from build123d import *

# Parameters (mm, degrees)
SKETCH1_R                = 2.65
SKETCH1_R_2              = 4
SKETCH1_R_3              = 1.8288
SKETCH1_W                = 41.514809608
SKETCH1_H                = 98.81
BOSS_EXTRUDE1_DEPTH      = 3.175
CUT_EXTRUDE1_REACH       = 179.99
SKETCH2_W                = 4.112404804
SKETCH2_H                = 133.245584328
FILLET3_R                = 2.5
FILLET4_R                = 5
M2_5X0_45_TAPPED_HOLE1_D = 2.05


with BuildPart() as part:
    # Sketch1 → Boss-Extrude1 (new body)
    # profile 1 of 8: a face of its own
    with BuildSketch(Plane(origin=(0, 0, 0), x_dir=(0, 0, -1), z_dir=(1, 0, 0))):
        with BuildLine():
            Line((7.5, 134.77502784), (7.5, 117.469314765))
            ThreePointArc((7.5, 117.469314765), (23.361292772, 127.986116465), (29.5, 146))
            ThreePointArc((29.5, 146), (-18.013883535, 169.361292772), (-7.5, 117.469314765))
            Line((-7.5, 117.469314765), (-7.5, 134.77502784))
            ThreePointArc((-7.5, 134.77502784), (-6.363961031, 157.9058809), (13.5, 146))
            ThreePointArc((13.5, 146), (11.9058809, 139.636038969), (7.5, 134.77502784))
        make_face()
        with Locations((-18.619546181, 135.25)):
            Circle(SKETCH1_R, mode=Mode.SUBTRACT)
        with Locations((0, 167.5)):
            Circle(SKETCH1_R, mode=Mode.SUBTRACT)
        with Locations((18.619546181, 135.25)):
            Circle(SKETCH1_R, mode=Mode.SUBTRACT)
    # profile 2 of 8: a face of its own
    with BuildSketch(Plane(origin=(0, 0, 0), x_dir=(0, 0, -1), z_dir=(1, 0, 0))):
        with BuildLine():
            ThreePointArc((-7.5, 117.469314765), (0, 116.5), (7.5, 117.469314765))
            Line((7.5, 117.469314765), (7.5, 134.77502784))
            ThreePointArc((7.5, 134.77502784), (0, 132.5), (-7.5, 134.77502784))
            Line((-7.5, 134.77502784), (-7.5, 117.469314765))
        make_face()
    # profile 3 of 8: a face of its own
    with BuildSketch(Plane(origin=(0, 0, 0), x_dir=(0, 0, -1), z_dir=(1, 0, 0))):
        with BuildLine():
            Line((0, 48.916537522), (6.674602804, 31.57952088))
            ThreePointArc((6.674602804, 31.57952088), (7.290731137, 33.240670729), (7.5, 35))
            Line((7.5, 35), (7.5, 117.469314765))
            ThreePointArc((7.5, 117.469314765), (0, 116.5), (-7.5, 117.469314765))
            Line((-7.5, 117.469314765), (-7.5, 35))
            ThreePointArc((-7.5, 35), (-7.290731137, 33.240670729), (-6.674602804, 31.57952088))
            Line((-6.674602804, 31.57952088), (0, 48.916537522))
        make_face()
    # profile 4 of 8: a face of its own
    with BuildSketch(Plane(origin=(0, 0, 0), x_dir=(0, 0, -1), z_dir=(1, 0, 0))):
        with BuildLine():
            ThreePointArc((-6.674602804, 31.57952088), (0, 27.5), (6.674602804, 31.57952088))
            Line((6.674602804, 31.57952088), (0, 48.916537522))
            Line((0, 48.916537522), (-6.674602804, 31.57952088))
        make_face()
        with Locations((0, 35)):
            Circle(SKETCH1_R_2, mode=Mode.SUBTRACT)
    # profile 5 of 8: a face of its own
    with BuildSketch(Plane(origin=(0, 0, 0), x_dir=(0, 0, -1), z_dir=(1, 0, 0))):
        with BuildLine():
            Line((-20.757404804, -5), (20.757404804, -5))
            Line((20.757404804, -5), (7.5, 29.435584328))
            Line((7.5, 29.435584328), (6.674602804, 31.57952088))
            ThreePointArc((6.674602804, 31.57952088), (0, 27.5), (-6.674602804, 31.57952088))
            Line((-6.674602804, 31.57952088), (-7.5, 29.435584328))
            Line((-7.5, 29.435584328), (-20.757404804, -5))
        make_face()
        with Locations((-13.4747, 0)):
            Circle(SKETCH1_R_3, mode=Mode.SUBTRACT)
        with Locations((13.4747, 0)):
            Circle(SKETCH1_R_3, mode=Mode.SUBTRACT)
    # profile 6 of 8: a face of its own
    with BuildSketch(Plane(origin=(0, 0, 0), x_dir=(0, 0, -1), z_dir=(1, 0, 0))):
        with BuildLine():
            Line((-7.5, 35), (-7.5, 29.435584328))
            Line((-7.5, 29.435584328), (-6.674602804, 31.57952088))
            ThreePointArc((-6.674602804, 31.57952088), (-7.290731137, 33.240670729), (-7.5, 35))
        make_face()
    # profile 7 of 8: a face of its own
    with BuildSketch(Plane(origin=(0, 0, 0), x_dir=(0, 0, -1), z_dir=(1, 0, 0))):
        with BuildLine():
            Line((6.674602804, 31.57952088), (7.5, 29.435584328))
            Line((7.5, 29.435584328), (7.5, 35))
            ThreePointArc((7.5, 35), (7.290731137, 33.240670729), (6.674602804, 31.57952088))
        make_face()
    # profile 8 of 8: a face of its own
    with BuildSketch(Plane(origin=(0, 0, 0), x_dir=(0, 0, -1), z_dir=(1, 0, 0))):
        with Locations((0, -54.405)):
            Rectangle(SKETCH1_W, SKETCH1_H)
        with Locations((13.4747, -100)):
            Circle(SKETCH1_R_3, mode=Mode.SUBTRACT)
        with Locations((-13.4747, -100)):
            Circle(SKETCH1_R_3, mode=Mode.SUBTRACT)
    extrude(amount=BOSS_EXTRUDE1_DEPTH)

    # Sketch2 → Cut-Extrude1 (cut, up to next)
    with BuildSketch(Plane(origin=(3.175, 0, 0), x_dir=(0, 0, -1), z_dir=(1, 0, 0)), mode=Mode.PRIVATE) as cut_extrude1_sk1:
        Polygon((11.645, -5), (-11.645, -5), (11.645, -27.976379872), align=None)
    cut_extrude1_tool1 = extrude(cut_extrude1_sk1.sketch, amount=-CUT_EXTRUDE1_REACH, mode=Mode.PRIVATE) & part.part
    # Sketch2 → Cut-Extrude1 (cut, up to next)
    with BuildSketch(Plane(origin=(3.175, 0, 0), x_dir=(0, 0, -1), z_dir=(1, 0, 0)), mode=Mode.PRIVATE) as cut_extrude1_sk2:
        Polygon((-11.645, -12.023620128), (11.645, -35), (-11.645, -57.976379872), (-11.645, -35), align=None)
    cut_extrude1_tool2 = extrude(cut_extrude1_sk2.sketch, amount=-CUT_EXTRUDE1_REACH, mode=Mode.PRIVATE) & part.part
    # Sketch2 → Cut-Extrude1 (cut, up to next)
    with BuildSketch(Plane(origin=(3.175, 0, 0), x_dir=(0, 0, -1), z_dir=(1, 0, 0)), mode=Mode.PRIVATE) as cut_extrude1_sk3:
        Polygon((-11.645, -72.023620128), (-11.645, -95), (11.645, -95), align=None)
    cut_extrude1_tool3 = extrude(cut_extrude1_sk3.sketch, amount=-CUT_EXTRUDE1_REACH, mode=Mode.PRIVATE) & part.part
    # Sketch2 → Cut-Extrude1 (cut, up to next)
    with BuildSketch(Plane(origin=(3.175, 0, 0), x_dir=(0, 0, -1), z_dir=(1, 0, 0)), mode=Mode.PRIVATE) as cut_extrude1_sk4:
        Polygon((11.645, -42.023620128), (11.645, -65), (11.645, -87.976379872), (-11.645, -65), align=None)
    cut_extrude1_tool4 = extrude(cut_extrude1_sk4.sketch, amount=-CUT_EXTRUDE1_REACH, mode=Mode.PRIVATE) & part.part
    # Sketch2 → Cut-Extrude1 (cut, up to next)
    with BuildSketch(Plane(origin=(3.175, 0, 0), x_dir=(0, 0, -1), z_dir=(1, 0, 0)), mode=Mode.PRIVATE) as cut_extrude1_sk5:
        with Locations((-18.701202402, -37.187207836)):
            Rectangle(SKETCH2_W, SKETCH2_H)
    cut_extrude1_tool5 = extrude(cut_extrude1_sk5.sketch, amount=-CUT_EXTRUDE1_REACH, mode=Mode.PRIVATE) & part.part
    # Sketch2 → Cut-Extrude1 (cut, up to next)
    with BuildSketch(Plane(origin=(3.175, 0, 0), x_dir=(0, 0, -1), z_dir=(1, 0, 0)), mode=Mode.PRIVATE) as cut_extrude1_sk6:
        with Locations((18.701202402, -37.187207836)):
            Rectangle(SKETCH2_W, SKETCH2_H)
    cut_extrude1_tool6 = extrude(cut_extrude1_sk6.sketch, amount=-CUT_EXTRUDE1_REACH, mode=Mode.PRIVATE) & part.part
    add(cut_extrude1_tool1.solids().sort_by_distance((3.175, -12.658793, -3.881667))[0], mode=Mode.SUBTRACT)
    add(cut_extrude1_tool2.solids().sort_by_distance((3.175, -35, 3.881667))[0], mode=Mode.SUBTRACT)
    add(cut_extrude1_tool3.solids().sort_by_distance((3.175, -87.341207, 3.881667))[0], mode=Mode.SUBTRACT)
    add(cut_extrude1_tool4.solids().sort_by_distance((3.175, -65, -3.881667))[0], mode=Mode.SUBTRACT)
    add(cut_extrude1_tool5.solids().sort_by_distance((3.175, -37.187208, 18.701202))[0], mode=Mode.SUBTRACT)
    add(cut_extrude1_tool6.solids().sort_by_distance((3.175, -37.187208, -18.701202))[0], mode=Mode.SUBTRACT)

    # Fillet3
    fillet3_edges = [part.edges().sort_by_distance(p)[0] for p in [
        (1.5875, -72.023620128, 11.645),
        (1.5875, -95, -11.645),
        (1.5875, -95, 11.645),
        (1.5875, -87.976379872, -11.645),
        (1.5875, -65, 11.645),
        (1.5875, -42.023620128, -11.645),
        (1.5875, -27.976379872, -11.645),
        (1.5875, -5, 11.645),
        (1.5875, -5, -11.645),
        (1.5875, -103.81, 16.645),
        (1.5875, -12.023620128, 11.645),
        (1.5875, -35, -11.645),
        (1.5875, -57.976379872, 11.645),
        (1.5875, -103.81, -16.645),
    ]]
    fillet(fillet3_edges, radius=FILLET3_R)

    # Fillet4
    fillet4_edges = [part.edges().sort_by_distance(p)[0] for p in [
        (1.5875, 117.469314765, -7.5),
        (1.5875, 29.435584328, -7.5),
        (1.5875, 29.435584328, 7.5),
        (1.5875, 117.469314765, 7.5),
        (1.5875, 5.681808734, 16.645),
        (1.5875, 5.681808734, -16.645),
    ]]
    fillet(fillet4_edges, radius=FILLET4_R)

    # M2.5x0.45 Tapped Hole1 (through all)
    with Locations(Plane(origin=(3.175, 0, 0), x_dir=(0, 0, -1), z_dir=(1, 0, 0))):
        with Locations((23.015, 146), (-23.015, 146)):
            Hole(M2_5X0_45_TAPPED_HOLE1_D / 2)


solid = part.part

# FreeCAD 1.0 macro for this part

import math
import FreeCAD as App
import Part
import Sketcher
from FreeCAD import Vector
Q = App.Units.Quantity


def edges_at(feature, points):
    """Names of the edges that pass closest to the given points."""
    edges = feature.Shape.Edges
    near = lambda p: min(range(len(edges)), key=lambda i: edges[i].distToShape(Part.Vertex(*p))[0])
    return sorted({f"Edge{near(p) + 1}" for p in points})


def add_polygon(sketch, points):
    """Adds a closed chain of lines whose ends are joined by coincident constraints."""
    first, n = sketch.GeometryCount, len(points)
    for a, b in zip(points, points[1:] + points[:1]):
        sketch.addGeometry(Part.LineSegment(App.Vector(*a, 0), App.Vector(*b, 0)), False)
    for i in range(n):
        sketch.addConstraint(Sketcher.Constraint("Coincident", first + i, 2, first + (i + 1) % n, 1))

doc = App.newDocument("Part")
body = doc.addObject("PartDesign::Body", "Body")

sketch1 = body.newObject("Sketcher::SketchObject", "Sketch")
sketch1.AttachmentSupport = (doc.getObject("YZ_Plane"), [""])
sketch1.MapMode = "FlatFace"
sketch1.addGeometry(Part.ArcOfCircle(Part.Circle(Vector(146, 0, 0), Vector(0, 0, 1), 29.5), math.radians(-165), math.radians(-90)), False)
sketch1.addGeometry(Part.ArcOfCircle(Part.Circle(Vector(146, 0, 0), Vector(0, 0, 1), 29.5), math.radians(-90), math.radians(165)), False)
sketch1.addGeometry(Part.LineSegment(Vector(117.5, 7.5, 0), Vector(29.4, 7.5, 0)), False)
sketch1.addGeometry(Part.LineSegment(Vector(29.4, 7.5, 0), Vector(-5, 20.8, 0)), False)
sketch1.addGeometry(Part.LineSegment(Vector(-5, 20.8, 0), Vector(-103.8, 20.8, 0)), False)
sketch1.addGeometry(Part.LineSegment(Vector(-103.8, 20.8, 0), Vector(-103.8, -20.8, 0)), False)
sketch1.addGeometry(Part.LineSegment(Vector(-103.8, -20.8, 0), Vector(-5, -20.8, 0)), False)
sketch1.addGeometry(Part.LineSegment(Vector(-5, -20.8, 0), Vector(29.4, -7.5, 0)), False)
sketch1.addGeometry(Part.LineSegment(Vector(29.4, -7.5, 0), Vector(117.5, -7.5, 0)), False)
sketch1.addGeometry(Part.ArcOfCircle(Part.Circle(Vector(146, 0, 0), Vector(0, 0, 1), 13.5), math.radians(-146), math.radians(-90)), False)
sketch1.addGeometry(Part.ArcOfCircle(Part.Circle(Vector(146, 0, 0), Vector(0, 0, 1), 13.5), math.radians(146), math.radians(214)), False)
sketch1.addGeometry(Part.ArcOfCircle(Part.Circle(Vector(146, 0, 0), Vector(0, 0, 1), 13.5), math.radians(-90), math.radians(146)), False)
sketch1.addGeometry(Part.Circle(Vector(135.2, 18.6, 0), Vector(0, 0, 1), 2.6), False)
sketch1.addGeometry(Part.Circle(Vector(135.2, -18.6, 0), Vector(0, 0, 1), 2.6), False)
sketch1.addGeometry(Part.Circle(Vector(167.5, 0, 0), Vector(0, 0, 1), 2.6), False)
sketch1.addGeometry(Part.Circle(Vector(35, 0, 0), Vector(0, 0, 1), 4), False)
sketch1.addGeometry(Part.Circle(Vector(0, -13.5, 0), Vector(0, 0, 1), 1.8), False)
sketch1.addGeometry(Part.Circle(Vector(0, 13.5, 0), Vector(0, 0, 1), 1.8), False)
sketch1.addGeometry(Part.Circle(Vector(-100, -13.5, 0), Vector(0, 0, 1), 1.8), False)
sketch1.addGeometry(Part.Circle(Vector(-100, 13.5, 0), Vector(0, 0, 1), 1.8), False)
sketch1.addConstraint(Sketcher.Constraint("Tangent", 0, 2, 1, 1))
sketch1.addConstraint(Sketcher.Constraint("Coincident", 1, 2, 2, 1))
sketch1.addConstraint(Sketcher.Constraint("Coincident", 2, 2, 3, 1))
sketch1.addConstraint(Sketcher.Constraint("Coincident", 3, 2, 4, 1))
sketch1.addConstraint(Sketcher.Constraint("Coincident", 4, 2, 5, 1))
sketch1.addConstraint(Sketcher.Constraint("Coincident", 5, 2, 6, 1))
sketch1.addConstraint(Sketcher.Constraint("Coincident", 6, 2, 7, 1))
sketch1.addConstraint(Sketcher.Constraint("Coincident", 7, 2, 8, 1))
sketch1.addConstraint(Sketcher.Constraint("Coincident", 8, 2, 0, 1))
sketch1.addConstraint(Sketcher.Constraint("Tangent", 9, 1, 10, 2))
sketch1.addConstraint(Sketcher.Constraint("Tangent", 10, 1, 11, 2))
sketch1.addConstraint(Sketcher.Constraint("Tangent", 11, 1, 9, 2))
sketch1.addConstraint(Sketcher.Constraint("Horizontal", 2))
sketch1.addConstraint(Sketcher.Constraint("Horizontal", 4))
sketch1.addConstraint(Sketcher.Constraint("Vertical", 5))
sketch1.addConstraint(Sketcher.Constraint("Horizontal", 6))
sketch1.addConstraint(Sketcher.Constraint("Horizontal", 8))
sketch1.addConstraint(Sketcher.Constraint("Coincident", 9, 3, 0, 3))
sketch1.addConstraint(Sketcher.Constraint("Equal", 0, 1))
sketch1.addConstraint(Sketcher.Constraint("Equal", 12, 13))
sketch1.addConstraint(Sketcher.Constraint("Equal", 13, 14))
sketch1.addConstraint(Sketcher.Constraint("Equal", 16, 17))
sketch1.addConstraint(Sketcher.Constraint("Equal", 17, 18))
sketch1.addConstraint(Sketcher.Constraint("Equal", 18, 19))
sketch1.addConstraint(Sketcher.Constraint("Symmetric", 16, 3, 17, 3, -1, 1))
sketch1.addConstraint(Sketcher.Constraint("Symmetric", 12, 3, 13, 3, -1))
sketch1.addConstraint(Sketcher.Constraint("Symmetric", 18, 3, 19, 3, -1))
sketch1.addConstraint(Sketcher.Constraint("Symmetric", 3, 2, 6, 2, -1))
sketch1.addConstraint(Sketcher.Constraint("Symmetric", 2, 2, 7, 2, -1))
sketch1.addConstraint(Sketcher.Constraint("Symmetric", 9, 1, 10, 1, -1))
sketch1.addConstraint(Sketcher.Constraint("PointOnObject", 14, 3, -1))
sketch1.addConstraint(Sketcher.Constraint("PointOnObject", 15, 3, -1))
sketch1.addConstraint(Sketcher.Constraint("PointOnObject", 16, 3, -2))
sketch1.addConstraint(Sketcher.Constraint("Horizontal", 16, 3, 18, 3))
sketch1.addConstraint(Sketcher.Constraint("Horizontal", 8, 2, 9, 1))
sketch1.addConstraint(Sketcher.Constraint("Vertical", 11, 3, 0, 2))
sketch1.addConstraint(Sketcher.Constraint("Vertical", 0, 2, 11, 1))
sketch1.addConstraint(Sketcher.Constraint("Diameter", 15, Q("8 mm")))
sketch1.addConstraint(Sketcher.Constraint("Diameter", 12, Q("5.3 mm")))
sketch1.addConstraint(Sketcher.Constraint("Radius", 0, Q("29.5 mm")))
sketch1.addConstraint(Sketcher.Constraint("Radius", 9, Q("13.5 mm")))
sketch1.addConstraint(Sketcher.Constraint("DistanceX", -1, 1, 0, 3, Q("146 mm")))
sketch1.addConstraint(Sketcher.Constraint("DistanceX", -1, 1, 15, 3, Q("35 mm")))
sketch1.addConstraint(Sketcher.Constraint("DistanceX", 18, 3, -1, 1, Q("100 mm")))
sketch1.addConstraint(Sketcher.Constraint("DistanceX", 3, 2, -1, 1, Q("5 mm")))
sketch1.addConstraint(Sketcher.Constraint("DistanceY", 7, 2, 2, 2, Q("15 mm")))
sketch1.addConstraint(Sketcher.Constraint("Diameter", 16, Q("3.6576 mm")))
sketch1.addConstraint(Sketcher.Constraint("DistanceX", 4, 2, 4, 1, Q("98.81 mm")))
sketch1.addConstraint(Sketcher.Constraint("DistanceX", -1, 1, 14, 3, Q("167.5 mm")))
sketch1.addConstraint(Sketcher.Constraint("DistanceX", -1, 1, 12, 3, Q("135.25 mm")))
sketch1.addConstraint(Sketcher.Constraint("DistanceX", 2, 2, 2, 1, Q("88.03373 mm")))
sketch1.addConstraint(Sketcher.Constraint("DistanceY", 5, 2, 5, 1, Q("41.51481 mm")))
sketch1.addConstraint(Sketcher.Constraint("DistanceY", 16, 3, -1, 1, Q("13.4747 mm")))
sketch1.addConstraint(Sketcher.Constraint("DistanceY", -1, 1, 12, 3, Q("18.619546 mm")))
pad1 = body.newObject("PartDesign::Pad", "Pad")
pad1.Profile = sketch1
pad1.Length = 3.175

sketch2 = body.newObject("Sketcher::SketchObject", "Sketch001")
sketch2.AttachmentSupport = (doc.getObject("YZ_Plane"), [""])
sketch2.MapMode = "FlatFace"
sketch2.AttachmentOffset = App.Placement(Vector(0, 0, 3.175), App.Rotation())
add_polygon(sketch2, [(-5, -12), (-5, 12), (-28, -12)])
sketch2.addConstraint(Sketcher.Constraint("Vertical", 0))
sketch2.addConstraint(Sketcher.Constraint("Horizontal", 2))
sketch2.addConstraint(Sketcher.Constraint("DistanceX", 0, 2, -1, 1, Q("5 mm")))
sketch2.addConstraint(Sketcher.Constraint("DistanceY", 0, 1, 0, 2, Q("23.29 mm")))
sketch2.addConstraint(Sketcher.Constraint("DistanceY", -1, 1, 0, 2, Q("11.645 mm")))
sketch2.addConstraint(Sketcher.Constraint("DistanceX", 2, 1, 2, 2, Q("22.97638 mm")))
pocket1 = body.newObject("PartDesign::Pocket", "Pocket")
pocket1.Profile = sketch2
pocket1.Type = "UpToFirst"

sketch3 = body.newObject("Sketcher::SketchObject", "Sketch002")
sketch3.AttachmentSupport = (doc.getObject("YZ_Plane"), [""])
sketch3.MapMode = "FlatFace"
sketch3.AttachmentOffset = App.Placement(Vector(0, 0, 3.175), App.Rotation())
add_polygon(sketch3, [(-35, -12), (-12, 12), (-58, 12)])
sketch3.addConstraint(Sketcher.Constraint("Horizontal", 1))
sketch3.addConstraint(Sketcher.Constraint("Equal", 0, 2))
sketch3.addConstraint(Sketcher.Constraint("DistanceX", 2, 2, -1, 1, Q("35 mm")))
sketch3.addConstraint(Sketcher.Constraint("DistanceY", 2, 2, 0, 2, Q("23.29 mm")))
sketch3.addConstraint(Sketcher.Constraint("DistanceY", -1, 1, 0, 2, Q("11.645 mm")))
sketch3.addConstraint(Sketcher.Constraint("DistanceX", 1, 2, 1, 1, Q("45.95276 mm")))
pocket2 = body.newObject("PartDesign::Pocket", "Pocket001")
pocket2.Profile = sketch3
pocket2.Type = "UpToFirst"

sketch4 = body.newObject("Sketcher::SketchObject", "Sketch003")
sketch4.AttachmentSupport = (doc.getObject("YZ_Plane"), [""])
sketch4.MapMode = "FlatFace"
sketch4.AttachmentOffset = App.Placement(Vector(0, 0, 3.175), App.Rotation())
add_polygon(sketch4, [(-72, 12), (-95, 12), (-95, -12)])
sketch4.addConstraint(Sketcher.Constraint("Horizontal", 0))
sketch4.addConstraint(Sketcher.Constraint("Vertical", 1))
sketch4.addConstraint(Sketcher.Constraint("DistanceX", 0, 2, -1, 1, Q("95 mm")))
sketch4.addConstraint(Sketcher.Constraint("DistanceY", 1, 2, 1, 1, Q("23.29 mm")))
sketch4.addConstraint(Sketcher.Constraint("DistanceY", -1, 1, 0, 2, Q("11.645 mm")))
sketch4.addConstraint(Sketcher.Constraint("DistanceX", 0, 2, 0, 1, Q("22.97638 mm")))
pocket3 = body.newObject("PartDesign::Pocket", "Pocket002")
pocket3.Profile = sketch4
pocket3.Type = "UpToFirst"

sketch5 = body.newObject("Sketcher::SketchObject", "Sketch004")
sketch5.AttachmentSupport = (doc.getObject("YZ_Plane"), [""])
sketch5.MapMode = "FlatFace"
sketch5.AttachmentOffset = App.Placement(Vector(0, 0, 3.175), App.Rotation())
add_polygon(sketch5, [(-88, -12), (-42, -12), (-65, 12)])
sketch5.addConstraint(Sketcher.Constraint("Horizontal", 0))
sketch5.addConstraint(Sketcher.Constraint("Equal", 1, 2))
sketch5.addConstraint(Sketcher.Constraint("DistanceX", 1, 2, -1, 1, Q("65 mm")))
sketch5.addConstraint(Sketcher.Constraint("DistanceY", 0, 2, 1, 2, Q("23.29 mm")))
sketch5.addConstraint(Sketcher.Constraint("DistanceY", 0, 2, -1, 1, Q("11.645 mm")))
sketch5.addConstraint(Sketcher.Constraint("DistanceX", 0, 1, 0, 2, Q("45.95276 mm")))
pocket4 = body.newObject("PartDesign::Pocket", "Pocket003")
pocket4.Profile = sketch5
pocket4.Type = "UpToFirst"

sketch6 = body.newObject("Sketcher::SketchObject", "Sketch005")
sketch6.AttachmentSupport = (doc.getObject("YZ_Plane"), [""])
sketch6.MapMode = "FlatFace"
sketch6.AttachmentOffset = App.Placement(Vector(0, 0, 3.175), App.Rotation())
add_polygon(sketch6, [(29.4, 20.8), (-103.8, 20.8), (-103.8, 16.6), (29.4, 16.6)])
sketch6.addConstraint(Sketcher.Constraint("Horizontal", 0))
sketch6.addConstraint(Sketcher.Constraint("Vertical", 1))
sketch6.addConstraint(Sketcher.Constraint("Horizontal", 2))
sketch6.addConstraint(Sketcher.Constraint("Vertical", 3))
sketch6.addConstraint(Sketcher.Constraint("DistanceX", 0, 2, -1, 1, Q("103.81 mm")))
sketch6.addConstraint(Sketcher.Constraint("DistanceY", -1, 1, 1, 2, Q("16.645 mm")))
sketch6.addConstraint(Sketcher.Constraint("DistanceX", 0, 2, 0, 1, Q("133.245584 mm")))
sketch6.addConstraint(Sketcher.Constraint("DistanceY", 1, 2, 1, 1, Q("4.112405 mm")))
pocket5 = body.newObject("PartDesign::Pocket", "Pocket004")
pocket5.Profile = sketch6
pocket5.Type = "UpToFirst"

sketch7 = body.newObject("Sketcher::SketchObject", "Sketch006")
sketch7.AttachmentSupport = (doc.getObject("YZ_Plane"), [""])
sketch7.MapMode = "FlatFace"
sketch7.AttachmentOffset = App.Placement(Vector(0, 0, 3.175), App.Rotation())
add_polygon(sketch7, [(29.4, -16.6), (-103.8, -16.6), (-103.8, -20.8), (29.4, -20.8)])
sketch7.addConstraint(Sketcher.Constraint("Horizontal", 0))
sketch7.addConstraint(Sketcher.Constraint("Vertical", 1))
sketch7.addConstraint(Sketcher.Constraint("Horizontal", 2))
sketch7.addConstraint(Sketcher.Constraint("Vertical", 3))
sketch7.addConstraint(Sketcher.Constraint("DistanceX", 0, 2, -1, 1, Q("103.81 mm")))
sketch7.addConstraint(Sketcher.Constraint("DistanceY", 0, 2, -1, 1, Q("16.645 mm")))
sketch7.addConstraint(Sketcher.Constraint("DistanceX", 0, 2, 0, 1, Q("133.245584 mm")))
sketch7.addConstraint(Sketcher.Constraint("DistanceY", 1, 2, 1, 1, Q("4.112405 mm")))
pocket6 = body.newObject("PartDesign::Pocket", "Pocket005")
pocket6.Profile = sketch7
pocket6.Type = "UpToFirst"
doc.recompute()

fillet = body.newObject("PartDesign::Fillet", "Fillet")
fillet.Base = (pocket6, edges_at(pocket6, [
    (1.587, -72.024, 11.645),
    (1.587, -95, -11.645),
    (1.587, -95, 11.645),
    (1.587, -87.976, -11.645),
    (1.587, -65, 11.645),
    (1.587, -42.024, -11.645),
    (1.587, -27.976, -11.645),
    (1.587, -5, 11.645),
    (1.587, -5, -11.645),
    (1.587, -103.81, 16.645),
    (1.587, -12.024, 11.645),
    (1.587, -35, -11.645),
    (1.587, -57.976, 11.645),
    (1.587, -103.81, -16.645),
]))
fillet.Radius = 2.5
doc.recompute()

fillet2 = body.newObject("PartDesign::Fillet", "Fillet001")
fillet2.Base = (fillet, edges_at(fillet, [
    (1.587, 117.469, -7.5),
    (1.587, 29.436, -7.5),
    (1.587, 29.436, 7.5),
    (1.587, 117.469, 7.5),
    (1.587, 5.682, 16.645),
    (1.587, 5.682, -16.645),
]))
fillet2.Radius = 5

sketch8 = body.newObject("Sketcher::SketchObject", "Sketch007")
sketch8.AttachmentSupport = (doc.getObject("YZ_Plane"), [""])
sketch8.MapMode = "FlatFace"
sketch8.AttachmentOffset = App.Placement(Vector(0, 0, 3.175), App.Rotation())
sketch8.addGeometry(Part.Circle(Vector(146, -23, 0), Vector(0, 0, 1), 1), False)
sketch8.addGeometry(Part.Circle(Vector(146, 23, 0), Vector(0, 0, 1), 1), False)
sketch8.addConstraint(Sketcher.Constraint("Equal", 0, 1))
sketch8.addConstraint(Sketcher.Constraint("Symmetric", 0, 3, 1, 3, -1))
sketch8.addConstraint(Sketcher.Constraint("Diameter", 0, Q("2.05 mm")))
sketch8.addConstraint(Sketcher.Constraint("DistanceX", -1, 1, 0, 3, Q("146 mm")))
sketch8.addConstraint(Sketcher.Constraint("DistanceY", 0, 3, 1, 3, Q("46.03 mm")))
doc.recompute()
hole = body.newObject("PartDesign::Hole", "Hole")
hole.Profile = sketch8
hole.ThreadType = "None"
hole.Diameter = 2.05
hole.DepthType = "ThroughAll"

doc.recompute()
